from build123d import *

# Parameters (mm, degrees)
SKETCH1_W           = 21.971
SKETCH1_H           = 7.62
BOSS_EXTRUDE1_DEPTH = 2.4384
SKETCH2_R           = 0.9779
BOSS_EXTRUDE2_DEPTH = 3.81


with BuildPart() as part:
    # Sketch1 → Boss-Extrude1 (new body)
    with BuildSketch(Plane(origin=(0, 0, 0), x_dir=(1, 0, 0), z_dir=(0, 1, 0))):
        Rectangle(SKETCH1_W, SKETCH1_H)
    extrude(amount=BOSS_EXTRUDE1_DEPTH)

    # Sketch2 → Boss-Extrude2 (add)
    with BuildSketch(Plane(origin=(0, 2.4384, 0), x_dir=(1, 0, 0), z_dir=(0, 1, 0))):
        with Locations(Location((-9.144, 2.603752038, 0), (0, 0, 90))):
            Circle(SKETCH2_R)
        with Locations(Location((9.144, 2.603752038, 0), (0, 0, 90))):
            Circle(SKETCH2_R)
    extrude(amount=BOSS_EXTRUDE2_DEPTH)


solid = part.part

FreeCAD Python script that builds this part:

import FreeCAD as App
import Part
import Sketcher

V = App.Vector
Q = App.Units.Quantity


def add_polygon(sketch, points):
    """Adds a closed chain of lines whose ends are joined by coincident constraints."""
    first, n = sketch.GeometryCount, len(points)
    for a, b in zip(points, points[1:] + points[:1]):
        sketch.addGeometry(Part.LineSegment(App.Vector(*a, 0), App.Vector(*b, 0)), False)
    for i in range(n):
        sketch.addConstraint(Sketcher.Constraint("Coincident", first + i, 2, first + (i + 1) % n, 1))

doc = App.newDocument("Part")
body = doc.addObject("PartDesign::Body", "Body")

sketch1 = body.newObject("Sketcher::SketchObject", "Sketch")
sketch1.AttachmentSupport = (doc.getObject("XZ_Plane"), [""])
sketch1.MapMode = "FlatFace"
add_polygon(sketch1, [(-11, -4), (-11, 4), (11, 4), (11, -4)])
sketch1.addConstraint(Sketcher.Constraint("Vertical", 0))
sketch1.addConstraint(Sketcher.Constraint("Horizontal", 1))
sketch1.addConstraint(Sketcher.Constraint("Vertical", 2))
sketch1.addConstraint(Sketcher.Constraint("Horizontal", 3))
sketch1.addConstraint(Sketcher.Constraint("Symmetric", 0, 2, 2, 2, -1, 1))
sketch1.addConstraint(Sketcher.Constraint("DistanceY", 0, 1, 0, 2, Q("0.3 in")))
sketch1.addConstraint(Sketcher.Constraint("DistanceX", 1, 1, 1, 2, Q("0.865 in")))
pad1 = body.newObject("PartDesign::Pad", "Pad")
pad1.Profile = sketch1
pad1.Length = Q("0.096 in")
pad1.Reversed = True

sketch2 = body.newObject("Sketcher::SketchObject", "Sketch001")
sketch2.AttachmentSupport = (doc.getObject("XZ_Plane"), [""])
sketch2.MapMode = "FlatFace"
sketch2.AttachmentOffset = App.Placement(V(0, 0, -0.096 * 25.4), App.Rotation())
sketch2.addGeometry(Part.Circle(V(-9.1, -2.6, 0), V(0, 0, 1), 1), False)
sketch2.addGeometry(Part.Circle(V(9.1, -2.6, 0), V(0, 0, 1), 1), False)
sketch2.addConstraint(Sketcher.Constraint("Equal", 0, 1))
sketch2.addConstraint(Sketcher.Constraint("Symmetric", 0, 3, 1, 3, -2))
sketch2.addConstraint(Sketcher.Constraint("Diameter", 0, Q("0.077 in")))
sketch2.addConstraint(Sketcher.Constraint("DistanceX", 0, 3, -1, 1, Q("0.36 in")))
sketch2.addConstraint(Sketcher.Constraint("DistanceY", 0, 3, -1, 1, 2.603752))
pad2 = body.newObject("PartDesign::Pad", "Pad001")
pad2.Profile = sketch2
pad2.Length = Q("0.15 in")
pad2.Reversed = True

doc.recompute()
